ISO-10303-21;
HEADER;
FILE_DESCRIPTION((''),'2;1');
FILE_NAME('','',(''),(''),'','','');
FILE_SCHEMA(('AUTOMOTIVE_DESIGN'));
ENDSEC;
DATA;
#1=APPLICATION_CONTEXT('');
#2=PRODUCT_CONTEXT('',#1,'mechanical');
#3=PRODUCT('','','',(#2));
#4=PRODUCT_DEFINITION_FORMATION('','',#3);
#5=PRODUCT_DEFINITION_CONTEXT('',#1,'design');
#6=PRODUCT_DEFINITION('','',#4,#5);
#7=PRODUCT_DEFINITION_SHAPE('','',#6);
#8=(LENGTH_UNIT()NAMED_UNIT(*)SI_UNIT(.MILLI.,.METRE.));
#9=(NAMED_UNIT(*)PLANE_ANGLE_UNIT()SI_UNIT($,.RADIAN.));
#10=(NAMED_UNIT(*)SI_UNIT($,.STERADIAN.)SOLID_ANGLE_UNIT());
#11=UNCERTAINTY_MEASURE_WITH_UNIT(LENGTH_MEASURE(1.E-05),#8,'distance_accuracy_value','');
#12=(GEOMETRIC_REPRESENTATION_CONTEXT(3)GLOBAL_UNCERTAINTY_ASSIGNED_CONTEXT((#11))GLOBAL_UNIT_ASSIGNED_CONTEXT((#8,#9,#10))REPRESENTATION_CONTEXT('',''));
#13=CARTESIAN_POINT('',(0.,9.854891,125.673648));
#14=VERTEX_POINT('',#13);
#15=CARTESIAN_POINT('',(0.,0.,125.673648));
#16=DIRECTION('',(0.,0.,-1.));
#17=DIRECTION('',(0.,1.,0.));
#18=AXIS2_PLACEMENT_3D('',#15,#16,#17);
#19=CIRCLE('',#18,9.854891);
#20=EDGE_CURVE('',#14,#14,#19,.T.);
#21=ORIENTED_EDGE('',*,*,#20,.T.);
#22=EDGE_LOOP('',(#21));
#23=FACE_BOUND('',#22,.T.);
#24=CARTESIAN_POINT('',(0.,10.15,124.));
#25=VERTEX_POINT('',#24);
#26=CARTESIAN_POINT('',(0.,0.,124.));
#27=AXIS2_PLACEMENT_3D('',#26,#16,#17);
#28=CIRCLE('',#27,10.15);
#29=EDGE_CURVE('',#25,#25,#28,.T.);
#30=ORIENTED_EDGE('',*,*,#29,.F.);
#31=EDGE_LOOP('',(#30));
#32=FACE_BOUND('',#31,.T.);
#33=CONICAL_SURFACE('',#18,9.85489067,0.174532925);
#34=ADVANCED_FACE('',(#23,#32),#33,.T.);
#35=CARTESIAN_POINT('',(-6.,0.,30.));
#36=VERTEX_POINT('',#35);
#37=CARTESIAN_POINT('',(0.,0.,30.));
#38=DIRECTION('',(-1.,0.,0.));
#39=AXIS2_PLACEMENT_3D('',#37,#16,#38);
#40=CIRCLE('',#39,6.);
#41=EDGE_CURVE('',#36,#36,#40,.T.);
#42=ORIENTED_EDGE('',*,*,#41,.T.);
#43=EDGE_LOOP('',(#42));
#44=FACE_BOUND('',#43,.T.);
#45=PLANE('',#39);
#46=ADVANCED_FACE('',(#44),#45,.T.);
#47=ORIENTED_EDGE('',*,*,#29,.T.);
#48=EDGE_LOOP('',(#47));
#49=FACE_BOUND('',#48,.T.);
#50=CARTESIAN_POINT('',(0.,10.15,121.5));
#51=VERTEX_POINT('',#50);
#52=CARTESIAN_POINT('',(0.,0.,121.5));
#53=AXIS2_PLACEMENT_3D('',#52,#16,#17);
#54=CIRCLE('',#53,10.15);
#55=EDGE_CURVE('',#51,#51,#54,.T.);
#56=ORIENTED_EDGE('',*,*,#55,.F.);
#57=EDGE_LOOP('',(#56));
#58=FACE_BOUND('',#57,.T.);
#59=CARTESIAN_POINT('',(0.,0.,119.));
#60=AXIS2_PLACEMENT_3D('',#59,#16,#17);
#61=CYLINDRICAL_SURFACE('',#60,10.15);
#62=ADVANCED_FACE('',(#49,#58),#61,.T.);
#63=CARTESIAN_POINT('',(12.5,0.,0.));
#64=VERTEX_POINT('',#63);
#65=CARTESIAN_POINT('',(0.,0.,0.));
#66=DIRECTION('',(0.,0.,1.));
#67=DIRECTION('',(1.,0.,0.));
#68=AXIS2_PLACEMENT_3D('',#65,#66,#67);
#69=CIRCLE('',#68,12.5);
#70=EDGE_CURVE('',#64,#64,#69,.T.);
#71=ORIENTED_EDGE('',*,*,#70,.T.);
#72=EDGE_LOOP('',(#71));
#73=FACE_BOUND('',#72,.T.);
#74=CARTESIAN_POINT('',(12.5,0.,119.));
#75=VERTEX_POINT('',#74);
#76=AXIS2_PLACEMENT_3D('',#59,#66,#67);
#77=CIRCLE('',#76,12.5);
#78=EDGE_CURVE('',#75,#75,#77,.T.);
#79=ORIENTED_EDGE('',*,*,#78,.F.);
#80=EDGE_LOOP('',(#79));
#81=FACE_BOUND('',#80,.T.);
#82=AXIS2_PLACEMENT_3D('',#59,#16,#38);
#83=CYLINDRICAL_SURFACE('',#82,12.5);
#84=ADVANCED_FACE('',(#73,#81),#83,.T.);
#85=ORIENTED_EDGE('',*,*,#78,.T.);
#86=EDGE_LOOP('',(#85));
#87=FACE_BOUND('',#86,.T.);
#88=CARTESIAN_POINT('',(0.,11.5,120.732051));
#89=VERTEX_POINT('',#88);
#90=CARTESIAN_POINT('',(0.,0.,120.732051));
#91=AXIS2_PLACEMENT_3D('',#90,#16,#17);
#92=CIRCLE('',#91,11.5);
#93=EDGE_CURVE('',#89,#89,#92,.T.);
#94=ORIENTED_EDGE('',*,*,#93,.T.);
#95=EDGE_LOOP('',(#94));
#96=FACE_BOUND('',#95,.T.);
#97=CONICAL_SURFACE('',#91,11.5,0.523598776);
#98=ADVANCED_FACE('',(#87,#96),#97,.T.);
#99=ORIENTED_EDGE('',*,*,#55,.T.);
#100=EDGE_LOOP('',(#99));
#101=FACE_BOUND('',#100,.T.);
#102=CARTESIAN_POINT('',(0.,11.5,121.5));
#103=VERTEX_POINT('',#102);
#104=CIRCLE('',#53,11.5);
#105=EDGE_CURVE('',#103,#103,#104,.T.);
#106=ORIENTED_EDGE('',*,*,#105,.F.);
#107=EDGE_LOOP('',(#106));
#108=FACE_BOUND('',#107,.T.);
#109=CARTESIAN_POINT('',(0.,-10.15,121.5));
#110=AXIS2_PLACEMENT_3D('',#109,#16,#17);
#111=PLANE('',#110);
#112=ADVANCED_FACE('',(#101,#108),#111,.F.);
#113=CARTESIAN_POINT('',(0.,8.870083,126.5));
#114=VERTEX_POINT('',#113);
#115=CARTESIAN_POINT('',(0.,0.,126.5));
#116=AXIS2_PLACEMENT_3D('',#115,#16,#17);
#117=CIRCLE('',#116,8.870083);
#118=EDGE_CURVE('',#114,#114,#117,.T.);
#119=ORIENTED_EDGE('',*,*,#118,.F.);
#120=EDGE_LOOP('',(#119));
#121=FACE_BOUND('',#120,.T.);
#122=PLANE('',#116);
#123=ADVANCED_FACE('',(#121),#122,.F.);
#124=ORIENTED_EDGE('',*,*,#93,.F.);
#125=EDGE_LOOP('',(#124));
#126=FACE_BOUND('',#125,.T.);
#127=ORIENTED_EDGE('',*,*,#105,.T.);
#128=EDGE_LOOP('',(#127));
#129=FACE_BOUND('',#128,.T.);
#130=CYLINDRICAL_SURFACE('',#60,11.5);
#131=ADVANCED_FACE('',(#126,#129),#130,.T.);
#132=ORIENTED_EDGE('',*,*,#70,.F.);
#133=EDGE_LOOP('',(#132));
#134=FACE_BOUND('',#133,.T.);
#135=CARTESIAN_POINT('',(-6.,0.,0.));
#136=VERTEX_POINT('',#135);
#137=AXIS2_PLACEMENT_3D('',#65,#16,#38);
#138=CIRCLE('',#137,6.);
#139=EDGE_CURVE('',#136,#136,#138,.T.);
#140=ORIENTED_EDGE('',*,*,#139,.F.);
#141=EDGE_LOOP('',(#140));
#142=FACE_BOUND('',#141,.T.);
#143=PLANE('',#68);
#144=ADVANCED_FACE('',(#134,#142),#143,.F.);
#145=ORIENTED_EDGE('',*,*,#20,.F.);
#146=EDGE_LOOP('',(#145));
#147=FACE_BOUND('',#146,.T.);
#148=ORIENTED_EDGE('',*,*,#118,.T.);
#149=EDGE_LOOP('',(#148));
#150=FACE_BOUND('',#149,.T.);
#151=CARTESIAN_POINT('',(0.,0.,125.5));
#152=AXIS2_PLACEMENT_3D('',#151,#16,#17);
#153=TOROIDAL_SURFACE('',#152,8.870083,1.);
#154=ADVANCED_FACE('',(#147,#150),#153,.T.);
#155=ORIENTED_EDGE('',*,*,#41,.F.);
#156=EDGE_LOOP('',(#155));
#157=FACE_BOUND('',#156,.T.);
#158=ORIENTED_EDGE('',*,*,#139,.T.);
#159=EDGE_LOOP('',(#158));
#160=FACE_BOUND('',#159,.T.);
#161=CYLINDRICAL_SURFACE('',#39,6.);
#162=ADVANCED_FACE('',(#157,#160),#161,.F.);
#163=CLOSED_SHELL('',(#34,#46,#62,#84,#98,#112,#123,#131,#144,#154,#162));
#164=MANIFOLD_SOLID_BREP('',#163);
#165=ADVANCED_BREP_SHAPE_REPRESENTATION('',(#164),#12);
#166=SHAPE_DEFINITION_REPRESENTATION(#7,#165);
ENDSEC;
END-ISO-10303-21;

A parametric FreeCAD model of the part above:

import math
import FreeCAD as App
import Part
import Sketcher
from FreeCAD import Vector
Q = App.Units.Quantity

doc = App.newDocument("Part")
params = doc.addObject("Spreadsheet::Sheet", "Params")
for row, (alias, value) in enumerate([
    ("sketch1_diameter", "25 mm"),
    ("pad1_length", "119 mm"),
    ("sketch2_radius", "1 mm"),
    ("sketch2_length", "2 mm"),
    ("sketch2_width", "12.5 mm"),
    ("sketch2_height", "7.5 mm"),
    ("sketch2_height2", "2.5 mm"),
    ("revolution_angle", "360 deg"),
    ("sketch3_diameter", "12 mm"),
    ("pocket1_length", "30 mm"),
], start=1):
    params.set(f"A{row}", alias)
    params.set(f"B{row}", "=" + value)
    params.setAlias(f"B{row}", alias)

body = doc.addObject("PartDesign::Body", "Body")

# Sketch on XY plane
sketch1 = body.newObject("Sketcher::SketchObject", "Sketch")
sketch1.AttachmentSupport = (doc.getObject("XY_Plane"), [""])
sketch1.MapMode = "FlatFace"
sketch1.addGeometry(Part.Circle(Vector(0, 0, 0), Vector(0, 0, 1), 12), False)
sketch1.addConstraint([
    Sketcher.Constraint("Coincident", 0, 3, -1, 1),
    Sketcher.Constraint("Diameter", 0, Q("25 mm")),
])
sketch1.setExpression("Constraints[1]", "Params.sketch1_diameter")
pad1 = body.newObject("PartDesign::Pad", "Pad")
pad1.Profile = sketch1
pad1.setExpression("Length", "Params.pad1_length")

# Sketch on YZ plane
sketch2 = body.newObject("Sketcher::SketchObject", "Sketch001")
sketch2.AttachmentSupport = (doc.getObject("YZ_Plane"), [""])
sketch2.MapMode = "FlatFace"
sketch2.addGeometry([
    Part.LineSegment(Vector(0, 119, 0), Vector(0, 126.5, 0)),  # 0
    Part.LineSegment(Vector(0, 126.5, 0), Vector(-8.9, 126.5, 0)),  # 1
    Part.ArcOfCircle(Part.Circle(Vector(-8.9, 125.5, 0), Vector(0, 0, 1), 1), math.radians(90), math.radians(170)),  # 2
    Part.LineSegment(Vector(-9.9, 125.7, 0), Vector(-10.2, 124, 0)),  # 3
    Part.LineSegment(Vector(-10.2, 124, 0), Vector(-10.2, 121.5, 0)),  # 4
    Part.LineSegment(Vector(-10.2, 121.5, 0), Vector(-11.5, 121.5, 0)),  # 5
    Part.LineSegment(Vector(-11.5, 121.5, 0), Vector(-11.5, 120.7, 0)),  # 6
    Part.LineSegment(Vector(-11.5, 120.7, 0), Vector(-12.5, 119, 0)),  # 7
    Part.LineSegment(Vector(-12.5, 119, 0), Vector(0, 119, 0)),  # 8
], False)
sketch2.addConstraint([
    Sketcher.Constraint("Coincident", 0, 2, 1, 1),
    Sketcher.Constraint("Tangent", 1, 2, 2, 1),
    Sketcher.Constraint("Tangent", 2, 2, 3, 1),
    Sketcher.Constraint("Coincident", 3, 2, 4, 1),
    Sketcher.Constraint("Coincident", 4, 2, 5, 1),
    Sketcher.Constraint("Coincident", 5, 2, 6, 1),
    Sketcher.Constraint("Coincident", 6, 2, 7, 1),
    Sketcher.Constraint("Coincident", 7, 2, 8, 1),
    Sketcher.Constraint("Coincident", 8, 2, 0, 1),
    Sketcher.Constraint("Vertical", 0),
    Sketcher.Constraint("Horizontal", 1),
    Sketcher.Constraint("Vertical", 4),
    Sketcher.Constraint("Horizontal", 5),
    Sketcher.Constraint("Vertical", 6),
    Sketcher.Constraint("Horizontal", 8),
    Sketcher.Constraint("PointOnObject", 0, 2, -2),
    Sketcher.Constraint("Radius", 2, Q("1 mm")),
    Sketcher.Constraint("Angle", 3, Q("-100 deg")),
    Sketcher.Constraint("Angle", 7, Q("-120 deg")),
    Sketcher.Constraint("Distance", 7, Q("2 mm")),
    Sketcher.Constraint("DistanceX", 8, 1, 8, 2, Q("12.5 mm")),
    Sketcher.Constraint("DistanceY", 0, 1, 0, 2, Q("7.5 mm")),
    Sketcher.Constraint("DistanceY", 4, 2, 4, 1, Q("2.5 mm")),
    Sketcher.Constraint("DistanceY", -1, 1, 3, 2, Q("124 mm")),
    Sketcher.Constraint("DistanceY", -1, 1, 7, 2, Q("119 mm")),
    Sketcher.Constraint("DistanceX", 5, 2, 5, 1, Q("1.35 mm")),
])
sketch2.setExpression("Constraints[16]", "Params.sketch2_radius")
sketch2.setExpression("Constraints[19]", "Params.sketch2_length")
sketch2.setExpression("Constraints[20]", "Params.sketch2_width")
sketch2.setExpression("Constraints[21]", "Params.sketch2_height")
sketch2.setExpression("Constraints[22]", "Params.sketch2_height2")
revolution = body.newObject("PartDesign::Revolution", "Revolution")
revolution.Profile = sketch2
revolution.ReferenceAxis = (sketch2, ["V_Axis"])
revolution.setExpression("Angle", "Params.revolution_angle")

# Sketch on XY plane
sketch3 = body.newObject("Sketcher::SketchObject", "Sketch002")
sketch3.AttachmentSupport = (doc.getObject("XY_Plane"), [""])
sketch3.MapMode = "FlatFace"
sketch3.addGeometry(Part.Circle(Vector(0, 0, 0), Vector(0, 0, 1), 6), False)
sketch3.addConstraint([
    Sketcher.Constraint("Coincident", 0, 3, -1, 1),
    Sketcher.Constraint("Diameter", 0, Q("12 mm")),
])
sketch3.setExpression("Constraints[1]", "Params.sketch3_diameter")
pocket1 = body.newObject("PartDesign::Pocket", "Pocket")
pocket1.Profile = sketch3
pocket1.setExpression("Length", "Params.pocket1_length")
pocket1.Reversed = True

doc.recompute()
